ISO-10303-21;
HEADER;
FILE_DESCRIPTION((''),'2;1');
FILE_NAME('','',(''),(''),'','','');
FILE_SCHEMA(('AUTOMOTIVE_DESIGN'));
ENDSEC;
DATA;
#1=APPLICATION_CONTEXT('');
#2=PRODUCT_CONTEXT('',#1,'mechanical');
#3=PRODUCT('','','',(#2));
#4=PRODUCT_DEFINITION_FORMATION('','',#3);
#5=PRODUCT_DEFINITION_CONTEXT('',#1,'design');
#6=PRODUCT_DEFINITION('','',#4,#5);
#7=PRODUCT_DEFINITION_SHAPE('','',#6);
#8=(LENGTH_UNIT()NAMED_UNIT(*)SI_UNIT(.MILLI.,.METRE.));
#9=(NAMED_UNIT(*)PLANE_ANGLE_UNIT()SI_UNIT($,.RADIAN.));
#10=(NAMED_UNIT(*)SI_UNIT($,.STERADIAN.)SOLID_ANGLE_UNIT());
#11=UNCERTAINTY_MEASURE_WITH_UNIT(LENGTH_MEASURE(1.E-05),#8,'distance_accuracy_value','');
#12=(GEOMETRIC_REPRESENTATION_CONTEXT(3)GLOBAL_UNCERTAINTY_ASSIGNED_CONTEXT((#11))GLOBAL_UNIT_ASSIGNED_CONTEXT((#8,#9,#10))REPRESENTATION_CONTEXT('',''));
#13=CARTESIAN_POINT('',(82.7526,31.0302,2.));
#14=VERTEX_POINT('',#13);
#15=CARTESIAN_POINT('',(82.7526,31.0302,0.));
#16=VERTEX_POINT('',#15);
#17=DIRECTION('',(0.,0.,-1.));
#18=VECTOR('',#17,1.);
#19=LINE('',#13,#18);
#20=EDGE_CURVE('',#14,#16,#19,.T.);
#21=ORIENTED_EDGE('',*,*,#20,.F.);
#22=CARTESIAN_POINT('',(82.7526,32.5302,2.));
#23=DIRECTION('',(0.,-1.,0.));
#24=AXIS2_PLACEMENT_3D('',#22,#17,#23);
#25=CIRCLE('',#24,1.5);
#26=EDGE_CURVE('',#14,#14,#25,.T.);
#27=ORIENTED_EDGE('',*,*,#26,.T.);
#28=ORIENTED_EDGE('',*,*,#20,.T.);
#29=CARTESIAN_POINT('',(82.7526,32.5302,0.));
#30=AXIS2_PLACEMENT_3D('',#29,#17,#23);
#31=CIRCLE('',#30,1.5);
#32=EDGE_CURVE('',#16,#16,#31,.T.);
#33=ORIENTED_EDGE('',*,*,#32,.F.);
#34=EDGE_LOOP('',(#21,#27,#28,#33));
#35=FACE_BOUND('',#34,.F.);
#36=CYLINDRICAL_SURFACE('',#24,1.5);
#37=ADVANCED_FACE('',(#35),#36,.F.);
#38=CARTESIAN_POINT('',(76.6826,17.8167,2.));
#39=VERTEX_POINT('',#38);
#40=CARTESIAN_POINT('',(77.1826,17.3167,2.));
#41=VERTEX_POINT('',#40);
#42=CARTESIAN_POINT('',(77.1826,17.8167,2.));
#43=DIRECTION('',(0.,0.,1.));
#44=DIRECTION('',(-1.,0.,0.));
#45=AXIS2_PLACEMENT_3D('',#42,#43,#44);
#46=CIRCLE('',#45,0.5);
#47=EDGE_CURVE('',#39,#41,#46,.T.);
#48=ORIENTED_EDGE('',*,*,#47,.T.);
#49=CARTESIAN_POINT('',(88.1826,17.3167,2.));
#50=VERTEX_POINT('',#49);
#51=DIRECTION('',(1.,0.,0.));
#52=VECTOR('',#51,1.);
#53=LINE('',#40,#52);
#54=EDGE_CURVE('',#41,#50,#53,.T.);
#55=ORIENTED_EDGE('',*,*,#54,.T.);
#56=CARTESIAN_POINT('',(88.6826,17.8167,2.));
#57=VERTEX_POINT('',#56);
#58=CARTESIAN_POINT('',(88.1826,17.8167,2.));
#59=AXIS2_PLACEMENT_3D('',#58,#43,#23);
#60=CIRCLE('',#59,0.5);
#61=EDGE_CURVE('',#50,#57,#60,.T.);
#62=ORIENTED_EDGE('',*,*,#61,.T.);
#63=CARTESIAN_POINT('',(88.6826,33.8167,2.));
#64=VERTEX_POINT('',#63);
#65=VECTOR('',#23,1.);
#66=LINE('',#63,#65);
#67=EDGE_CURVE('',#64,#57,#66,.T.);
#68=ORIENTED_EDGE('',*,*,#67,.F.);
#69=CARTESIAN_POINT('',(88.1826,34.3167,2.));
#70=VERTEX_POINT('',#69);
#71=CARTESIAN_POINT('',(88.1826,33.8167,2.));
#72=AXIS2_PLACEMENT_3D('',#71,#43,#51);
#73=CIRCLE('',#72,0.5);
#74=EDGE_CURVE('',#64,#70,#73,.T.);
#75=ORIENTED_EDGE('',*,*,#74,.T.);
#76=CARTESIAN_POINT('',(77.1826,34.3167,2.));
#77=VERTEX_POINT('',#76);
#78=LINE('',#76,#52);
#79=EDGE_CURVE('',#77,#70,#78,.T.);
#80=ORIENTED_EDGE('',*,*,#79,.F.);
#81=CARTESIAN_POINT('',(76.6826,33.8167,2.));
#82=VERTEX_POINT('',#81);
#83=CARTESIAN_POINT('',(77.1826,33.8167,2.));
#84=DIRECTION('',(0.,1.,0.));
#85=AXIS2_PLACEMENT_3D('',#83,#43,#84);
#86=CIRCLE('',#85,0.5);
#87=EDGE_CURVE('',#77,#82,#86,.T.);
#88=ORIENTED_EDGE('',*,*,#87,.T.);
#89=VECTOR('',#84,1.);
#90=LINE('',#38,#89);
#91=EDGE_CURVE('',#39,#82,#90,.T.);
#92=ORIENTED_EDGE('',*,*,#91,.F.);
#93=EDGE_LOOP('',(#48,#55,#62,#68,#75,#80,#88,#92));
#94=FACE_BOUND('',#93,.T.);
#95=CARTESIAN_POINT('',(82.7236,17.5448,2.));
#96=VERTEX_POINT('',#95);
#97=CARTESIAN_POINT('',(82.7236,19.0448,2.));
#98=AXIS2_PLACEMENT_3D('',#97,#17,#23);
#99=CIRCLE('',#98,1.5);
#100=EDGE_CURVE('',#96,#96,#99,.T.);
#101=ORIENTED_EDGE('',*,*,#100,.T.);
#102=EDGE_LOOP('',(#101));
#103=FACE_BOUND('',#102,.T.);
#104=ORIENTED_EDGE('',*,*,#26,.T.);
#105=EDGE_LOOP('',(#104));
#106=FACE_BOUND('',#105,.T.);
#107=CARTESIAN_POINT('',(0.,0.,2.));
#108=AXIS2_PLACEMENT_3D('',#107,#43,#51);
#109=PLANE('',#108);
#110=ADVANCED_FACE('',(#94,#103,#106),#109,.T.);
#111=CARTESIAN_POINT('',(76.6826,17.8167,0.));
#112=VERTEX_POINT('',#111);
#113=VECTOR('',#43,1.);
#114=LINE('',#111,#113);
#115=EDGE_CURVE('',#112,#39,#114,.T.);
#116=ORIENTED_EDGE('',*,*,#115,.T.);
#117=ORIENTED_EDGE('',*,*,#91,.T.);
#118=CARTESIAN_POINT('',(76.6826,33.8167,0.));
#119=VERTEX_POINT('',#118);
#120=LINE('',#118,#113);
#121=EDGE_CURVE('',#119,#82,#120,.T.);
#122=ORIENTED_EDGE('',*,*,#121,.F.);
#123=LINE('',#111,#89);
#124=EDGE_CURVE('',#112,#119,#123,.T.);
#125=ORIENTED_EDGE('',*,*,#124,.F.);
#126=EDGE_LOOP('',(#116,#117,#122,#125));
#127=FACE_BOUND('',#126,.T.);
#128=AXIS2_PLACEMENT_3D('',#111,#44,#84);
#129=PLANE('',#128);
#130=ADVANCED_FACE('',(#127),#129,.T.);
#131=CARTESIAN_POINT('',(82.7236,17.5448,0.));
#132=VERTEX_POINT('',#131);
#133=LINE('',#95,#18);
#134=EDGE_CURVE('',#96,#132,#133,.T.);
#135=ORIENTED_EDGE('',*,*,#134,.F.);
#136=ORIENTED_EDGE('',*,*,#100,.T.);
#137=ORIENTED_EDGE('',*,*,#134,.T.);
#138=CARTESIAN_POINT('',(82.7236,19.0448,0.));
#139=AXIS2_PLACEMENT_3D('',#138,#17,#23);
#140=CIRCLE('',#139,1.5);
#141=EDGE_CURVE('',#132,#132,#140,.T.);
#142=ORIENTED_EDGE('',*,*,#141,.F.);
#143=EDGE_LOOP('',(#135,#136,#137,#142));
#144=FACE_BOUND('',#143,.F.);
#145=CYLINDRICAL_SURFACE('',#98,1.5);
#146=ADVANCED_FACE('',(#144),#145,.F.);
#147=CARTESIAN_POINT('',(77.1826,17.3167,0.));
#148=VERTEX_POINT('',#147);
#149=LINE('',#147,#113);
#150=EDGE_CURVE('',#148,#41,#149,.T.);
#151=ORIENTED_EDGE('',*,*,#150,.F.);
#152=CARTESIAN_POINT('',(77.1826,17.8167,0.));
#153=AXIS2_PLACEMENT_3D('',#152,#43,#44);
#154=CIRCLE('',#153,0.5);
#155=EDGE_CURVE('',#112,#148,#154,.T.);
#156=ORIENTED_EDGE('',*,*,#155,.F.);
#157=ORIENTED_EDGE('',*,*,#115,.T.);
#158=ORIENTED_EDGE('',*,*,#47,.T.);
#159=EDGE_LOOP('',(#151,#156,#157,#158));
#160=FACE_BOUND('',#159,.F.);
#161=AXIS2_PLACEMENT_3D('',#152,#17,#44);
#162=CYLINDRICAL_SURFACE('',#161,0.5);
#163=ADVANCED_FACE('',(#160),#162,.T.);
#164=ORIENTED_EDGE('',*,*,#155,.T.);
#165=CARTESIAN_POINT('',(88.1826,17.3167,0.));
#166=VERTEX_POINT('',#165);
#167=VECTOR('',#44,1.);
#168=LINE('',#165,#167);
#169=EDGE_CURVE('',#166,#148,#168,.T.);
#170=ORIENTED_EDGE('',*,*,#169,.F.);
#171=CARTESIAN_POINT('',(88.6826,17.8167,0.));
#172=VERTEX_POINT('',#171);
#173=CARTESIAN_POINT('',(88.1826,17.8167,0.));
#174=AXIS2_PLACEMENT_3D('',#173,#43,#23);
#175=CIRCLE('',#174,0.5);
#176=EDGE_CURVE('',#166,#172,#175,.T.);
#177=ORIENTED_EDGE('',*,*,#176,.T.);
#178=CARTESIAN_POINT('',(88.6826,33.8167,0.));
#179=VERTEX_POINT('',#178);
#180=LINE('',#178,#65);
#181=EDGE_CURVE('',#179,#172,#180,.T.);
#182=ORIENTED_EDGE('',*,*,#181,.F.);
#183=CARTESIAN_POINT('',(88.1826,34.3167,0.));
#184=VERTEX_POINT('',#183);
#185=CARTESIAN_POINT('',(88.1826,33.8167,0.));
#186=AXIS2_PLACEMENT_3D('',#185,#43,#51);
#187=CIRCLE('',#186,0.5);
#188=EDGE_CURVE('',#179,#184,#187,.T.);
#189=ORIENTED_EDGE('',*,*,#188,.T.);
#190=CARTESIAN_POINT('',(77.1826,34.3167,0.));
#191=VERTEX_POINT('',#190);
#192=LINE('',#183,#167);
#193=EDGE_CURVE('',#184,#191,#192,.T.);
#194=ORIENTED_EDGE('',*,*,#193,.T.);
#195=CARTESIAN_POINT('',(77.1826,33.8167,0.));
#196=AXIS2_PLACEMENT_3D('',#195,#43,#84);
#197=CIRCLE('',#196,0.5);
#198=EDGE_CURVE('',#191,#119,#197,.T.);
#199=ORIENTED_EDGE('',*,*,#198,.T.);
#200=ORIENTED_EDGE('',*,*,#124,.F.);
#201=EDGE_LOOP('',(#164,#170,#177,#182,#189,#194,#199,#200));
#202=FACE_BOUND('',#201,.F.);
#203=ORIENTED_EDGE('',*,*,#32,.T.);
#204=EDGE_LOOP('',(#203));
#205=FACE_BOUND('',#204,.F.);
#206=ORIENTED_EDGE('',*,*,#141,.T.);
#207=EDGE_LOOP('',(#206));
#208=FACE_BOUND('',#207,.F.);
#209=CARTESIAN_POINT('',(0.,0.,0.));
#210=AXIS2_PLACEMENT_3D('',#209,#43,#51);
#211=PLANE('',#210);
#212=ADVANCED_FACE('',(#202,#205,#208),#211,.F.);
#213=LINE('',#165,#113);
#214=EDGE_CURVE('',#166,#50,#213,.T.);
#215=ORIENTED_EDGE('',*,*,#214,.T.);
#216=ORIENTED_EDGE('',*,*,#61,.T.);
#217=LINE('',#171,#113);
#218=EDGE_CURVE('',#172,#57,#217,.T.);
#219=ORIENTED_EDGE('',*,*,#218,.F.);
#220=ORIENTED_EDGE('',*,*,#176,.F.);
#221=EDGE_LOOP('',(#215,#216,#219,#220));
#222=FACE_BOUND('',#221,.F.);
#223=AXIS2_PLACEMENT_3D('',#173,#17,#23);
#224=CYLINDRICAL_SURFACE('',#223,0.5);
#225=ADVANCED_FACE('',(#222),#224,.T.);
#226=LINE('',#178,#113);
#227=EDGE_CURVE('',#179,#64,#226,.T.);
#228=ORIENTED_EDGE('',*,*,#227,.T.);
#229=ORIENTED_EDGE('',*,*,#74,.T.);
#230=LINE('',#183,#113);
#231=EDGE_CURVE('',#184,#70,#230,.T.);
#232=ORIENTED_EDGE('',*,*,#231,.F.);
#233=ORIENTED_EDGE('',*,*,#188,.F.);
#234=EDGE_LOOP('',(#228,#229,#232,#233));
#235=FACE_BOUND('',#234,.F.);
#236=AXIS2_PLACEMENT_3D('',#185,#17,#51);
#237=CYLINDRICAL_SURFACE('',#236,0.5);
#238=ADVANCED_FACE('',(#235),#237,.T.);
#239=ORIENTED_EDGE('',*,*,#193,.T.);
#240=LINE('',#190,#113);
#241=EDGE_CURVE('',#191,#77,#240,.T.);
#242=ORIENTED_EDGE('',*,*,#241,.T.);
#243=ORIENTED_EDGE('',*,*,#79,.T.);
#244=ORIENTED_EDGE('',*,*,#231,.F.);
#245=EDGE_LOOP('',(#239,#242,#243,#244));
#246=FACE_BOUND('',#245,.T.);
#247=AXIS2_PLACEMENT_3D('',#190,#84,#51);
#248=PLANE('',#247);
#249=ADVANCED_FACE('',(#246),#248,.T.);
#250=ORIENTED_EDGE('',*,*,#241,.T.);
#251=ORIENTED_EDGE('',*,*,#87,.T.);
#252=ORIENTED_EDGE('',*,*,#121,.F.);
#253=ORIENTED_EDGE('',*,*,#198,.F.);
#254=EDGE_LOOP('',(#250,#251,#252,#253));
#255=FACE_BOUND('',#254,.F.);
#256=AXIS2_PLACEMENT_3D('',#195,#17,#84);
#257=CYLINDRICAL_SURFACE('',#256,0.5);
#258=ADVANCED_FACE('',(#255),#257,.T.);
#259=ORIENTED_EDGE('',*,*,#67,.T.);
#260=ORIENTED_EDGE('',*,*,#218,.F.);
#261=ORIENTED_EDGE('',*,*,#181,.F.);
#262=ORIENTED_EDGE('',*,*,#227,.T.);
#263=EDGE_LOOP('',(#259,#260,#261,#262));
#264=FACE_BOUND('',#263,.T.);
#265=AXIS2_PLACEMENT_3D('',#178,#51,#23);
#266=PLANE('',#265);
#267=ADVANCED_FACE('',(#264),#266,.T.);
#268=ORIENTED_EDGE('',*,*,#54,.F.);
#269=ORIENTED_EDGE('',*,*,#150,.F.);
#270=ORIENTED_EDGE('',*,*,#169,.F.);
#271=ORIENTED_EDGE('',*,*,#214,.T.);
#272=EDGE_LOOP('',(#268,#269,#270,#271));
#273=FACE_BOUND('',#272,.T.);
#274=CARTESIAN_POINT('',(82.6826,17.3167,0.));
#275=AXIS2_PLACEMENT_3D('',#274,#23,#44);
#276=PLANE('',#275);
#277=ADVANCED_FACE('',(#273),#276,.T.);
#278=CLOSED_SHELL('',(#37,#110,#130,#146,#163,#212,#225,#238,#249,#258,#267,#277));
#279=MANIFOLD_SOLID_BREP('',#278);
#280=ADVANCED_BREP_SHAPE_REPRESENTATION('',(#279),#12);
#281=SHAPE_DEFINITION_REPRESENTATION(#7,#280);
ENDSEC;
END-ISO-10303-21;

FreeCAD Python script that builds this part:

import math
import FreeCAD as App
import Part
import Sketcher

V = App.Vector

doc = App.newDocument("Part")
body = doc.addObject("PartDesign::Body", "Body")

# Sketch on XY plane
sketch1 = doc.addObject("Sketcher::SketchObject", "Sketch")
body.addObject(sketch1)
sketch1.AttachmentSupport = (doc.XY_Plane, [""])
sketch1.MapMode = "FlatFace"
sketch1.addGeometry(Part.ArcOfCircle(Part.Circle(V(77.1826, 33.8167, 0), V(0, 0, 1), 0.5), math.radians(90), math.radians(180)), False)
sketch1.addGeometry(Part.LineSegment(V(76.6826, 33.8167, 0), V(76.6826, 17.8167, 0)), False)
sketch1.addGeometry(Part.ArcOfCircle(Part.Circle(V(77.1826, 17.8167, 0), V(0, 0, 1), 0.5), math.radians(180), math.radians(270)), False)
sketch1.addGeometry(Part.LineSegment(V(77.1826, 17.3167, 0), V(88.1826, 17.3167, 0)), False)
sketch1.addGeometry(Part.ArcOfCircle(Part.Circle(V(88.1826, 17.8167, 0), V(0, 0, 1), 0.5), math.radians(-90), math.radians(0)), False)
sketch1.addGeometry(Part.LineSegment(V(88.6826, 17.8167, 0), V(88.6826, 33.8167, 0)), False)
sketch1.addGeometry(Part.ArcOfCircle(Part.Circle(V(88.1826, 33.8167, 0), V(0, 0, 1), 0.5), math.radians(0), math.radians(90)), False)
sketch1.addGeometry(Part.LineSegment(V(88.1826, 34.3167, 0), V(77.1826, 34.3167, 0)), False)
sketch1.addConstraint(Sketcher.Constraint("Tangent", 0, 2, 1, 1))
sketch1.addConstraint(Sketcher.Constraint("Tangent", 1, 2, 2, 1))
sketch1.addConstraint(Sketcher.Constraint("Tangent", 2, 2, 3, 1))
sketch1.addConstraint(Sketcher.Constraint("Tangent", 3, 2, 4, 1))
sketch1.addConstraint(Sketcher.Constraint("Tangent", 4, 2, 5, 1))
sketch1.addConstraint(Sketcher.Constraint("Tangent", 5, 2, 6, 1))
sketch1.addConstraint(Sketcher.Constraint("Tangent", 6, 2, 7, 1))
sketch1.addConstraint(Sketcher.Constraint("Tangent", 7, 2, 0, 1))
sketch1.addConstraint(Sketcher.Constraint("Vertical", 1))
sketch1.addConstraint(Sketcher.Constraint("Horizontal", 3))
sketch1.addConstraint(Sketcher.Constraint("Vertical", 5))
sketch1.addConstraint(Sketcher.Constraint("Horizontal", 7))
sketch1.addConstraint(Sketcher.Constraint("Equal", 0, 2))
sketch1.addConstraint(Sketcher.Constraint("Equal", 2, 4))
sketch1.addConstraint(Sketcher.Constraint("Equal", 4, 6))
sketch1.addConstraint(Sketcher.Constraint("Radius", 0, 0.5))
sketch1.addConstraint(Sketcher.Constraint("DistanceX", 1, 2, 4, 2, 12.0))
sketch1.addConstraint(Sketcher.Constraint("DistanceY", 1, 2, 1, 1, 16.0))
sketch1.addConstraint(Sketcher.Constraint("DistanceX", -1, 1, 0, 3, 77.1826))
sketch1.addConstraint(Sketcher.Constraint("DistanceY", -1, 1, 0, 3, 33.8167))
pad1 = doc.addObject("PartDesign::Pad", "Pad")
body.addObject(pad1)
pad1.Profile = sketch1
pad1.Length = 2

# Sketch on XY plane
sketch2 = doc.addObject("Sketcher::SketchObject", "Sketch001")
body.addObject(sketch2)
sketch2.AttachmentSupport = (doc.XY_Plane, [""])
sketch2.MapMode = "FlatFace"
sketch2.AttachmentOffset = App.Placement(V(0, 0, 2), App.Rotation())
sketch2.addGeometry(Part.Circle(V(82.7526, 32.5302, 0), V(0, 0, 1), 1.5), False)
sketch2.addConstraint(Sketcher.Constraint("Diameter", 0, 3.0))
sketch2.addConstraint(Sketcher.Constraint("DistanceX", -1, 1, 0, 3, 82.7526))
sketch2.addConstraint(Sketcher.Constraint("DistanceY", -1, 1, 0, 3, 32.5302))
doc.recompute()
hole = doc.addObject("PartDesign::Hole", "Hole")
body.addObject(hole)
hole.Profile = sketch2
hole.ThreadType = "None"
hole.Diameter = 3
hole.DepthType = "Dimension"
hole.Depth = 55.5
hole.DrillPoint = "Flat"

# Sketch on XY plane
sketch3 = doc.addObject("Sketcher::SketchObject", "Sketch002")
body.addObject(sketch3)
sketch3.AttachmentSupport = (doc.XY_Plane, [""])
sketch3.MapMode = "FlatFace"
sketch3.AttachmentOffset = App.Placement(V(0, 0, 2), App.Rotation())
sketch3.addGeometry(Part.Circle(V(82.7236, 19.0448, 0), V(0, 0, 1), 1.5), False)
sketch3.addConstraint(Sketcher.Constraint("Diameter", 0, 3.0))
sketch3.addConstraint(Sketcher.Constraint("DistanceX", -1, 1, 0, 3, 82.7236))
sketch3.addConstraint(Sketcher.Constraint("DistanceY", -1, 1, 0, 3, 19.0448))
doc.recompute()
hole2 = doc.addObject("PartDesign::Hole", "Hole001")
body.addObject(hole2)
hole2.Profile = sketch3
hole2.ThreadType = "None"
hole2.Diameter = 3
hole2.DepthType = "Dimension"
hole2.Depth = 55.5
hole2.DrillPoint = "Flat"

doc.recompute()
